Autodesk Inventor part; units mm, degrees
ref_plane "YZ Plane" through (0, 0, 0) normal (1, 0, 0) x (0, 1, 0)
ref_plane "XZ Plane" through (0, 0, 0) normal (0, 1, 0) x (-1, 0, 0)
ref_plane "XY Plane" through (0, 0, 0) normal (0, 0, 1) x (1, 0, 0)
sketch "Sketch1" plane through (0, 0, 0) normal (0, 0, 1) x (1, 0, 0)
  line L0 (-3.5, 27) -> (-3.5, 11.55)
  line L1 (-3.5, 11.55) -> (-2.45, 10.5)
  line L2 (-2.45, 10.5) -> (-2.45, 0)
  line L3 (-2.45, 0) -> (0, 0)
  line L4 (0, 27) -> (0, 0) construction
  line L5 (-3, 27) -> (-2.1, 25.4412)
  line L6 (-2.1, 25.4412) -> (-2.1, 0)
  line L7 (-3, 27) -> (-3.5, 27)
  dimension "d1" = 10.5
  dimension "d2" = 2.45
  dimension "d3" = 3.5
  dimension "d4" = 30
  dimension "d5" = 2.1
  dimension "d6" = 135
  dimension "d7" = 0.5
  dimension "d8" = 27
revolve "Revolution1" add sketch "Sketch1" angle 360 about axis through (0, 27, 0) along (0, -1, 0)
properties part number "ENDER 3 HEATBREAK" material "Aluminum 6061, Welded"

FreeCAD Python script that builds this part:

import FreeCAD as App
import Part
import Sketcher

V = App.Vector
Q = App.Units.Quantity


def add_polygon(sketch, points):
    """Adds a closed chain of lines whose ends are joined by coincident constraints."""
    first, n = sketch.GeometryCount, len(points)
    for a, b in zip(points, points[1:] + points[:1]):
        sketch.addGeometry(Part.LineSegment(App.Vector(*a, 0), App.Vector(*b, 0)), False)
    for i in range(n):
        sketch.addConstraint(Sketcher.Constraint("Coincident", first + i, 2, first + (i + 1) % n, 1))

doc = App.newDocument("Part")
body = doc.addObject("PartDesign::Body", "Body")

sketch1 = doc.addObject("Sketcher::SketchObject", "Sketch")
body.addObject(sketch1)
sketch1.AttachmentSupport = (doc.XY_Plane, [""])
sketch1.MapMode = "FlatFace"
add_polygon(sketch1, [(-3, 27), (-3.5, 27), (-3.5, 11.55), (-2.45, 10.5), (-2.45, 0), (-2.1, 0), (-2.1, 25.44)])
sketch1.addConstraint(Sketcher.Constraint("Horizontal", 0))
sketch1.addConstraint(Sketcher.Constraint("Vertical", 1))
sketch1.addConstraint(Sketcher.Constraint("Vertical", 3))
sketch1.addConstraint(Sketcher.Constraint("Horizontal", 4))
sketch1.addConstraint(Sketcher.Constraint("Vertical", 5))
sketch1.addConstraint(Sketcher.Constraint("PointOnObject", 3, 2, -1))
sketch1.addConstraint(Sketcher.Constraint("DistanceX", 0, 2, 0, 1, Q("0.5 mm")))
sketch1.addConstraint(Sketcher.Constraint("DistanceY", 3, 2, 3, 1, Q("10.5 mm")))
sketch1.addConstraint(Sketcher.Constraint("DistanceY", -1, 1, 0, 2, Q("27 mm")))
sketch1.addConstraint(Sketcher.Constraint("DistanceX", 0, 2, -1, 1, Q("3.5 mm")))
sketch1.addConstraint(Sketcher.Constraint("DistanceX", 4, 2, -1, 1, Q("2.1 mm")))
sketch1.addConstraint(Sketcher.Constraint("DistanceX", 2, 2, -1, 1, Q("2.45 mm")))
sketch1.addConstraint(Sketcher.Constraint("Angle", 2, Q("-45 deg")))
sketch1.addConstraint(Sketcher.Constraint("Angle", 6, Q("120.0007 deg")))
revolution = doc.addObject("PartDesign::Revolution", "Revolution")
body.addObject(revolution)
revolution.Profile = sketch1
revolution.ReferenceAxis = (sketch1, ["V_Axis"])
revolution.Angle = 360

doc.recompute()
